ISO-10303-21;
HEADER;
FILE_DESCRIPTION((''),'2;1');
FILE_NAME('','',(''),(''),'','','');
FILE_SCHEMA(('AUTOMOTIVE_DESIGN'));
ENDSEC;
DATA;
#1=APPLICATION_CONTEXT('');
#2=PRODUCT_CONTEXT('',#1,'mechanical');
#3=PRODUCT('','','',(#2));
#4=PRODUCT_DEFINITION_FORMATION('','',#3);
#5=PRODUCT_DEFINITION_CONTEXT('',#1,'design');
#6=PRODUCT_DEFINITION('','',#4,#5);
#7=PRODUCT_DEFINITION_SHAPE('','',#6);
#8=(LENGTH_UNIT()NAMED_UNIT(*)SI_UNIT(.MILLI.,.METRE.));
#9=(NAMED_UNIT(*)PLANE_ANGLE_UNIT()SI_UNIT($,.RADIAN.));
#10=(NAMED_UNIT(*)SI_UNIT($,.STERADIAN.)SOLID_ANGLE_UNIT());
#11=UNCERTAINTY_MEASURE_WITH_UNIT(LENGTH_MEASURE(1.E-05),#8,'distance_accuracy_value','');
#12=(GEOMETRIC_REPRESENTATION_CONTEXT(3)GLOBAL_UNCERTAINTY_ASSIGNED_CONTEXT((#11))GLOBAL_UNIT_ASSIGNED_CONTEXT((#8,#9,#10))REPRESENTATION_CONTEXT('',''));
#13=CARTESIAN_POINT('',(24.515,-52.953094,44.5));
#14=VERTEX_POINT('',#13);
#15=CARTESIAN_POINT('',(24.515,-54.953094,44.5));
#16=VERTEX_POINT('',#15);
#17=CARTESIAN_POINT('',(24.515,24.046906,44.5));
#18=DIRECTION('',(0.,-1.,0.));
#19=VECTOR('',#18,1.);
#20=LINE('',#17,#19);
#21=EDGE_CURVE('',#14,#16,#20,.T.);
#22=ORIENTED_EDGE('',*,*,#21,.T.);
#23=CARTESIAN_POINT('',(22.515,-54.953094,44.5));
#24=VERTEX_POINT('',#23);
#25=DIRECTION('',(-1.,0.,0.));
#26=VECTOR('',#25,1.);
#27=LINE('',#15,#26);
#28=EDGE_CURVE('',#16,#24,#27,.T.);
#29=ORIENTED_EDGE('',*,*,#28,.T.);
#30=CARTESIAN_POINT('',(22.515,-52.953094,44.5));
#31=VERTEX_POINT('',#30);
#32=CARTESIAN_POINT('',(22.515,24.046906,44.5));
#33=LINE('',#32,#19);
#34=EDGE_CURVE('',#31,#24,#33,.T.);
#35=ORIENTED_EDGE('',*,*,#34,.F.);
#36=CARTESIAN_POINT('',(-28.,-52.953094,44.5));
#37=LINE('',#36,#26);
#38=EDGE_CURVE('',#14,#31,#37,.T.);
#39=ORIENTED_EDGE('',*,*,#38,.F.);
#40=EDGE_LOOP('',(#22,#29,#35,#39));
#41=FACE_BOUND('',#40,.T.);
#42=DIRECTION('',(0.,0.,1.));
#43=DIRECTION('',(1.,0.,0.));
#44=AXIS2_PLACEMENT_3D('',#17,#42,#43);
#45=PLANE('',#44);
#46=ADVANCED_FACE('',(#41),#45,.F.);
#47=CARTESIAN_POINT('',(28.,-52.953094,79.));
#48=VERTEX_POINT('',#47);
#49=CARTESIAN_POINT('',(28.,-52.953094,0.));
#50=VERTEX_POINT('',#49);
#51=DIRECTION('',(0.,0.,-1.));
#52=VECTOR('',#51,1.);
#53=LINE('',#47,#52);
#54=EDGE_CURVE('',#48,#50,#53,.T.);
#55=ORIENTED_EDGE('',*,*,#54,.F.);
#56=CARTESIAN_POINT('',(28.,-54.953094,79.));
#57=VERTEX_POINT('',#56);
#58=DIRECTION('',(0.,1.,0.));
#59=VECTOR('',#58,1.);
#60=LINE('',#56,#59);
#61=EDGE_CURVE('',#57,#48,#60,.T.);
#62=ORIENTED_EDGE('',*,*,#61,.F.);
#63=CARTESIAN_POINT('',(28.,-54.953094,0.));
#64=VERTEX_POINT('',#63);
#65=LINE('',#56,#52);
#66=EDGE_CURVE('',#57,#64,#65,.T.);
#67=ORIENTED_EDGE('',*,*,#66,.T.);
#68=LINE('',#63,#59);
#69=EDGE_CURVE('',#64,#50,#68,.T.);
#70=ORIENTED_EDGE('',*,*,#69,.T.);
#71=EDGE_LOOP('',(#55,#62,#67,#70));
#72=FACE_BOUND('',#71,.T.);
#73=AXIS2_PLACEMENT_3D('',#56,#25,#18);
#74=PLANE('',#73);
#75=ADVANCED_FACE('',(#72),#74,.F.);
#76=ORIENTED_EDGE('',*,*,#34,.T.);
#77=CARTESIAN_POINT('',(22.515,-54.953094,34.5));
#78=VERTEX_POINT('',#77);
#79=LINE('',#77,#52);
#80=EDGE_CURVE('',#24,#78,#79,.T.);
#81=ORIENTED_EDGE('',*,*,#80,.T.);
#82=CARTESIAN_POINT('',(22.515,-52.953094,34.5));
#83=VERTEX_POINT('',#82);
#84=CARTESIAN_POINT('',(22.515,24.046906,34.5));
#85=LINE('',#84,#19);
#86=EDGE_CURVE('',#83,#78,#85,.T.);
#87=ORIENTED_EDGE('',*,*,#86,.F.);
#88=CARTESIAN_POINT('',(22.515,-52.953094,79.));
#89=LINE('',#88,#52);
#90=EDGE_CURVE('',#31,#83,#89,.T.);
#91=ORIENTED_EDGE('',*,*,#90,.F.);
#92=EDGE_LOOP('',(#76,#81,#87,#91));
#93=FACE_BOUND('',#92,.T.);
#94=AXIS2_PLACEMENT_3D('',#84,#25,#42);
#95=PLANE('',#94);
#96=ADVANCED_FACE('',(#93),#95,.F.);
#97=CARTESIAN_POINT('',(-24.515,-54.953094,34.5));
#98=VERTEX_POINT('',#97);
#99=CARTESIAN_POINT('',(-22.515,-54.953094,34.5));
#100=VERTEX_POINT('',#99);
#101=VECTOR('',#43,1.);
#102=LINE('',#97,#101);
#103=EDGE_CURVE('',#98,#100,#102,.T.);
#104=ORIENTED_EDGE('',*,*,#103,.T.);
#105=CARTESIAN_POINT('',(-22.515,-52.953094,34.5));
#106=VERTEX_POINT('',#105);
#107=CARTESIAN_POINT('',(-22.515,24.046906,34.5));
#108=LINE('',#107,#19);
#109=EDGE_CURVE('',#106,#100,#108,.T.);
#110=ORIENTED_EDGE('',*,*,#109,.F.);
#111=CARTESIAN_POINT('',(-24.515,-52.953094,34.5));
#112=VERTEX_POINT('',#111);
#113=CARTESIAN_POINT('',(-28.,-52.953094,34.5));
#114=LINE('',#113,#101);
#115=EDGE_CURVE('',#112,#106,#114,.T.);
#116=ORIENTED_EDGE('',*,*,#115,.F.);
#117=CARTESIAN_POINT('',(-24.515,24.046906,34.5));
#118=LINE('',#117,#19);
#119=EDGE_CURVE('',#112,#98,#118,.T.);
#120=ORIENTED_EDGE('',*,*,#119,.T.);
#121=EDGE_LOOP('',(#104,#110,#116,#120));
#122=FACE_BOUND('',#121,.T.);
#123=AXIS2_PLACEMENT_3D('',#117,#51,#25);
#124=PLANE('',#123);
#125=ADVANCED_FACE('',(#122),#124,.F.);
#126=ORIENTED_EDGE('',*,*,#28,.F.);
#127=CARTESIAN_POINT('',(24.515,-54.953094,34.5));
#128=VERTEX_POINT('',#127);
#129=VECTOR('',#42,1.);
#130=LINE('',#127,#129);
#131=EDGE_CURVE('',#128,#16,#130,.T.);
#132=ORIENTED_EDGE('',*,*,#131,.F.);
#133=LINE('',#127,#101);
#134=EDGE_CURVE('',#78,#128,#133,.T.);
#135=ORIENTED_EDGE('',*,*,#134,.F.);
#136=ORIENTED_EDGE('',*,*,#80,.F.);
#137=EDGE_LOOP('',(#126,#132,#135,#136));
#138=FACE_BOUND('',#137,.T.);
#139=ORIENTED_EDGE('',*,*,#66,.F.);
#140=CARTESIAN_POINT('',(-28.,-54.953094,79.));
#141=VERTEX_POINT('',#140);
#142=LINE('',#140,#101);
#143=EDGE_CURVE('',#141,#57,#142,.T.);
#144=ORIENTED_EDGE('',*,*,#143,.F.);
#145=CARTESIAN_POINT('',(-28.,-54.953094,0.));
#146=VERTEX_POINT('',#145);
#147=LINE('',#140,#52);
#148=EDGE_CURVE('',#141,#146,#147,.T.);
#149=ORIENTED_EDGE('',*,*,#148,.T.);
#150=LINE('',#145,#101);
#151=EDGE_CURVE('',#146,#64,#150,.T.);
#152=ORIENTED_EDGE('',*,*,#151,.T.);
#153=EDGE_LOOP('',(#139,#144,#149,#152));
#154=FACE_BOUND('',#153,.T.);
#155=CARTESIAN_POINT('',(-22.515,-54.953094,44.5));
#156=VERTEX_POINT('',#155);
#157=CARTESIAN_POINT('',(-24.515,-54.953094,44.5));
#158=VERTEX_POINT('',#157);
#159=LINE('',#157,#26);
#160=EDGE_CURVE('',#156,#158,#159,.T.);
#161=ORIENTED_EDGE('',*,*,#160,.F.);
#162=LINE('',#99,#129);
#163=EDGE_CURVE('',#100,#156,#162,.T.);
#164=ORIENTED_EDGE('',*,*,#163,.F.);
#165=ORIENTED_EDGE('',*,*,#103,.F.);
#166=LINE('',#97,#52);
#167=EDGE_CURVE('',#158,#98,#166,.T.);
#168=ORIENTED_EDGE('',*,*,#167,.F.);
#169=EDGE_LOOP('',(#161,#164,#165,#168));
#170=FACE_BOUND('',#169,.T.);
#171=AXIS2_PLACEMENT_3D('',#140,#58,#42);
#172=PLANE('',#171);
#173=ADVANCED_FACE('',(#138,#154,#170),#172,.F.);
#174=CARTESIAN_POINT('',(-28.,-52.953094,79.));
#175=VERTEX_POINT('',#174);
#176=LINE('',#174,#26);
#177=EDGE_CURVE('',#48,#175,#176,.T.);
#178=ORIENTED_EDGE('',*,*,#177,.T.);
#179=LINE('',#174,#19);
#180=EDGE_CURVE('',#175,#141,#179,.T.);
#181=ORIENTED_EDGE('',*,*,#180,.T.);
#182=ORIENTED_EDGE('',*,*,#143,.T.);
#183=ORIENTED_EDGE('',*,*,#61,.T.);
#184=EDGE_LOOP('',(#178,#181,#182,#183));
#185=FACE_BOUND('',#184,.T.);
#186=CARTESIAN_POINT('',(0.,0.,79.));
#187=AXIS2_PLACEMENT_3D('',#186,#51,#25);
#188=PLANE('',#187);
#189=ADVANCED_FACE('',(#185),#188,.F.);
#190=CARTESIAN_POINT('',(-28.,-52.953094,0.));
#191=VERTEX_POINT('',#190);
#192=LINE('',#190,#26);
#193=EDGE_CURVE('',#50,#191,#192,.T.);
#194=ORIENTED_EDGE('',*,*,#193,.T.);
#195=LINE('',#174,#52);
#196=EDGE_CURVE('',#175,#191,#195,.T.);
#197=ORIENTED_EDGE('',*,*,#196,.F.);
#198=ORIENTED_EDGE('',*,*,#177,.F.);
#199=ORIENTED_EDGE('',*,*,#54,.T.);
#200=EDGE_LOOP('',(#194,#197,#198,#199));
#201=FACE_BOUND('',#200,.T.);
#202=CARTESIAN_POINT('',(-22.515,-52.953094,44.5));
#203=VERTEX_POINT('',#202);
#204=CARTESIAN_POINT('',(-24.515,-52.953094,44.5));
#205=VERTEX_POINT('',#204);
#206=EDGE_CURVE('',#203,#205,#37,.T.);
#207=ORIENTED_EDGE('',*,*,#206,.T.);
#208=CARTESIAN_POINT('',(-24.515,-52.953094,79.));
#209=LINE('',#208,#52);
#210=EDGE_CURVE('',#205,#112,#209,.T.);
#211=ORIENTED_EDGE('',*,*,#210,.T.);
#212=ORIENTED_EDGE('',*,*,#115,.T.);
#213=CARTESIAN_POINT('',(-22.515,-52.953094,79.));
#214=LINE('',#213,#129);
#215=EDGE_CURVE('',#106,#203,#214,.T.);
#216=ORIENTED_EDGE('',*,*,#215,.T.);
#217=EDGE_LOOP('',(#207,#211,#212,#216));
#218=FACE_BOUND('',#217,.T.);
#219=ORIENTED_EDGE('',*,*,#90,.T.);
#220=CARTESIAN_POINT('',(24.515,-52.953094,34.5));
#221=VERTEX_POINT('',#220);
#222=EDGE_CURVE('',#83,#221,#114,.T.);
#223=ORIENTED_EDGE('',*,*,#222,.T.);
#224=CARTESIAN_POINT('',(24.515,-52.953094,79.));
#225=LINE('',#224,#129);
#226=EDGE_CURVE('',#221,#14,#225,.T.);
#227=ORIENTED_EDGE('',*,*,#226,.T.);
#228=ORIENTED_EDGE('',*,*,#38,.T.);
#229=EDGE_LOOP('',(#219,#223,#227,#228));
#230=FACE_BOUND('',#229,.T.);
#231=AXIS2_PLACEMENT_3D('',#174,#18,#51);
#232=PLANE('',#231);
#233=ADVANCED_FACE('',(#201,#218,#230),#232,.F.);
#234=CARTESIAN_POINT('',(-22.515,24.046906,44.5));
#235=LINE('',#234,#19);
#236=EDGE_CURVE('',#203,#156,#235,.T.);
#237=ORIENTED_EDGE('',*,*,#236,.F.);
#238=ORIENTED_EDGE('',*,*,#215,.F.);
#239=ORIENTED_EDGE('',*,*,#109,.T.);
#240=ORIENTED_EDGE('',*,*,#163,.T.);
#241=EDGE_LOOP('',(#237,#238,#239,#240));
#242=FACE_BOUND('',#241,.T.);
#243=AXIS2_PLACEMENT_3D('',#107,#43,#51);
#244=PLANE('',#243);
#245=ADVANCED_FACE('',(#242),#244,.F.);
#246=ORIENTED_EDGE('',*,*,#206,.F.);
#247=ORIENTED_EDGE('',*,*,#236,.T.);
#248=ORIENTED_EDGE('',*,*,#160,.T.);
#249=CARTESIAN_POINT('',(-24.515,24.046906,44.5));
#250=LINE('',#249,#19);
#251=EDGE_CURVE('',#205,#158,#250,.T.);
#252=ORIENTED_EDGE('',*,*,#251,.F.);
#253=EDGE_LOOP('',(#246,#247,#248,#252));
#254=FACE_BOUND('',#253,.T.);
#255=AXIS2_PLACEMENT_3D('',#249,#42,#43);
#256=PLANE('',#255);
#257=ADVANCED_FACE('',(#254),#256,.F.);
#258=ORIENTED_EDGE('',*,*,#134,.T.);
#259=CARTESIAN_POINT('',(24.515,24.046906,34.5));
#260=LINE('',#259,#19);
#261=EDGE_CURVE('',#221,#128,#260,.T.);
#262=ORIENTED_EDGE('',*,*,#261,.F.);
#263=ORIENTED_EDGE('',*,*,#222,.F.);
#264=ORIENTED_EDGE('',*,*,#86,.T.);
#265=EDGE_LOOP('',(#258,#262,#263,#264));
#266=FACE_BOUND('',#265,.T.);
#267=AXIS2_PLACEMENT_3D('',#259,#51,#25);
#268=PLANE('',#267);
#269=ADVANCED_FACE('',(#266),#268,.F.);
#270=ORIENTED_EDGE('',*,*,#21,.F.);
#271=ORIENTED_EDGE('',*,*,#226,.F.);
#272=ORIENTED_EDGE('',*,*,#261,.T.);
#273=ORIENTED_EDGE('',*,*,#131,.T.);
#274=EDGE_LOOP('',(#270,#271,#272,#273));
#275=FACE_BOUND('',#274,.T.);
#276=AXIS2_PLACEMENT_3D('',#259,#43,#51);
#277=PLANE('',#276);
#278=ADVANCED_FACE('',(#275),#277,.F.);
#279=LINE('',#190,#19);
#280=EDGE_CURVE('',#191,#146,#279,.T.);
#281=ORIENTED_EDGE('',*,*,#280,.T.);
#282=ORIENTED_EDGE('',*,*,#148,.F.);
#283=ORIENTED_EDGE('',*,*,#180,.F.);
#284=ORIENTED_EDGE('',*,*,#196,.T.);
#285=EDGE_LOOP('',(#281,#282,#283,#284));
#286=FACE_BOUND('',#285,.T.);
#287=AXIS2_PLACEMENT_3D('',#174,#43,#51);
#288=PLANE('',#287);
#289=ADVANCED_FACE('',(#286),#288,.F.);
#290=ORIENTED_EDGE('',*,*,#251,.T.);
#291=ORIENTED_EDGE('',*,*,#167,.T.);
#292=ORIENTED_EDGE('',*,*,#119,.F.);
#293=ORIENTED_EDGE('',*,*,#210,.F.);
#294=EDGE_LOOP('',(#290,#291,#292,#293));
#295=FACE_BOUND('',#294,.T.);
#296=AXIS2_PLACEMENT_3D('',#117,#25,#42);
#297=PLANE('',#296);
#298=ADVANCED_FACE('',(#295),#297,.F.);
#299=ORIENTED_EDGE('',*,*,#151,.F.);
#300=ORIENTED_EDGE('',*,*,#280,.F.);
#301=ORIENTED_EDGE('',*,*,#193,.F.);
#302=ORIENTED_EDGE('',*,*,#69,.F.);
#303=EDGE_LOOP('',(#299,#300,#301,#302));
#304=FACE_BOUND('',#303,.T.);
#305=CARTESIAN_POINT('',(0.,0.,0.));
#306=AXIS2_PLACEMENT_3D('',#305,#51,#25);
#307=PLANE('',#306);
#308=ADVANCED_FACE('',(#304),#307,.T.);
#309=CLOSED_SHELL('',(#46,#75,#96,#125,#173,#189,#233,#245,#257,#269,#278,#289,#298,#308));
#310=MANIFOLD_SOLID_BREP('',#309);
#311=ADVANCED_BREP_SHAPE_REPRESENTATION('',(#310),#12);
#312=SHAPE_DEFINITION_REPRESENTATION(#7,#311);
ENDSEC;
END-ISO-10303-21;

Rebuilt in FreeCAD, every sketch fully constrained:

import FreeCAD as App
import Part
import Sketcher
from FreeCAD import Vector

doc = App.newDocument("Part")
body = doc.addObject("PartDesign::Body", "Body")

sketch1 = body.newObject("Sketcher::SketchObject", "Sketch")
sketch1.AttachmentSupport = (doc.getObject("XY_Plane"), [""])
sketch1.MapMode = "FlatFace"
sketch1.addGeometry([
    Part.LineSegment(Vector(-28, -52.953094, 0), Vector(-28, -54.953094, 0)),
    Part.LineSegment(Vector(-28, -54.953094, 0), Vector(28, -54.953094, 0)),
    Part.LineSegment(Vector(28, -54.953094, 0), Vector(28, -52.953094, 0)),
    Part.LineSegment(Vector(28, -52.953094, 0), Vector(-28, -52.953094, 0)),
], False)
sketch1.addConstraint([
    Sketcher.Constraint("Coincident", 0, 2, 1, 1),
    Sketcher.Constraint("Coincident", 1, 2, 2, 1),
    Sketcher.Constraint("Coincident", 2, 2, 3, 1),
    Sketcher.Constraint("Coincident", 3, 2, 0, 1),
    Sketcher.Constraint("Vertical", 0),
    Sketcher.Constraint("Horizontal", 1),
    Sketcher.Constraint("Vertical", 2),
    Sketcher.Constraint("Horizontal", 3),
    Sketcher.Constraint("DistanceX", 1, 1, 1, 2, 56.0),
    Sketcher.Constraint("DistanceY", 0, 2, 0, 1, 2.0),
    Sketcher.Constraint("DistanceX", 0, 2, -1, 1, 28.0),
    Sketcher.Constraint("DistanceY", 0, 2, -1, 1, 54.953094),
])
pad1 = body.newObject("PartDesign::Pad", "Pad")
pad1.Profile = sketch1
pad1.Length = 79

sketch2 = body.newObject("Sketcher::SketchObject", "Sketch001")
sketch2.AttachmentSupport = (doc.getObject("XZ_Plane"), [""])
sketch2.MapMode = "FlatFace"
sketch2.AttachmentOffset = App.Placement(Vector(0, 0, 54.953094), App.Rotation())
sketch2.addGeometry([
    Part.LineSegment(Vector(-24.515, 44.5, 0), Vector(-24.515, 34.5, 0)),
    Part.LineSegment(Vector(-24.515, 34.5, 0), Vector(-22.515, 34.5, 0)),
    Part.LineSegment(Vector(-22.515, 34.5, 0), Vector(-22.515, 44.5, 0)),
    Part.LineSegment(Vector(-22.515, 44.5, 0), Vector(-24.515, 44.5, 0)),
    Part.LineSegment(Vector(22.515, 44.5, 0), Vector(22.515, 34.5, 0)),
    Part.LineSegment(Vector(22.515, 34.5, 0), Vector(24.515, 34.5, 0)),
    Part.LineSegment(Vector(24.515, 34.5, 0), Vector(24.515, 44.5, 0)),
    Part.LineSegment(Vector(24.515, 44.5, 0), Vector(22.515, 44.5, 0)),
], False)
sketch2.addConstraint([
    Sketcher.Constraint("Coincident", 0, 2, 1, 1),
    Sketcher.Constraint("Coincident", 1, 2, 2, 1),
    Sketcher.Constraint("Coincident", 2, 2, 3, 1),
    Sketcher.Constraint("Coincident", 3, 2, 0, 1),
    Sketcher.Constraint("Coincident", 4, 2, 5, 1),
    Sketcher.Constraint("Coincident", 5, 2, 6, 1),
    Sketcher.Constraint("Coincident", 6, 2, 7, 1),
    Sketcher.Constraint("Coincident", 7, 2, 4, 1),
    Sketcher.Constraint("Vertical", 0),
    Sketcher.Constraint("Horizontal", 1),
    Sketcher.Constraint("Vertical", 2),
    Sketcher.Constraint("Horizontal", 3),
    Sketcher.Constraint("Vertical", 4),
    Sketcher.Constraint("Horizontal", 5),
    Sketcher.Constraint("Vertical", 6),
    Sketcher.Constraint("Horizontal", 7),
    Sketcher.Constraint("Symmetric", 1, 2, 4, 2, -2),
    Sketcher.Constraint("Symmetric", 3, 2, 6, 2, -2),
    Sketcher.Constraint("DistanceX", 1, 1, 1, 2, 2.0),
    Sketcher.Constraint("DistanceY", 0, 2, 0, 1, 10.0),
    Sketcher.Constraint("DistanceY", -1, 1, 0, 2, 34.5),
    Sketcher.Constraint("DistanceX", 1, 2, 4, 2, 45.03),
])
pocket1 = body.newObject("PartDesign::Pocket", "Pocket")
pocket1.Profile = sketch2
pocket1.Length = 79

doc.recompute()
